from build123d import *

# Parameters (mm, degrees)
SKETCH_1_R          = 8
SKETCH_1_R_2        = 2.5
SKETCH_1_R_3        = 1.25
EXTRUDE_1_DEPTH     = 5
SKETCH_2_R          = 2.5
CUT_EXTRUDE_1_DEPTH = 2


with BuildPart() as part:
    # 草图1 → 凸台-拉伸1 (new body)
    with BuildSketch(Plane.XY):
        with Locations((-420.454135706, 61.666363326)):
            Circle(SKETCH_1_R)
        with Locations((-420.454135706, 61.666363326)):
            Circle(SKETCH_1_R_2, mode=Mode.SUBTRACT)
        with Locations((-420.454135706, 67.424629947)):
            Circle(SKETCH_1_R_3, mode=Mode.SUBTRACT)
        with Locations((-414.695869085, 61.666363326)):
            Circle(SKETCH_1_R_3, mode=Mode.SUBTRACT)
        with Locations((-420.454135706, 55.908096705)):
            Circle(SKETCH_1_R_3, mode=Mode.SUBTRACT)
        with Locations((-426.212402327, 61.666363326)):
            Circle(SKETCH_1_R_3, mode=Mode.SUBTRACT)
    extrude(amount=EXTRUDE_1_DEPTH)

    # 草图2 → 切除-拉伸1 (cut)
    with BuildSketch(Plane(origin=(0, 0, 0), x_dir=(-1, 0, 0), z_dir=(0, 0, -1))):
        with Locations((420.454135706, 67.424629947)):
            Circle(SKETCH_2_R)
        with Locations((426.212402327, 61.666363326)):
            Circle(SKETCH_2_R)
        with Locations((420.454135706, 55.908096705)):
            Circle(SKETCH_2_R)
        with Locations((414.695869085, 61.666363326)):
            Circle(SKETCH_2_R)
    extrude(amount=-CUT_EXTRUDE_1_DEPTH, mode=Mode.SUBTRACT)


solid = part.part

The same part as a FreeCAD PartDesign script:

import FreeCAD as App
import Part
import Sketcher

V = App.Vector
Q = App.Units.Quantity

doc = App.newDocument("Part")
body = doc.addObject("PartDesign::Body", "Body")

# Sketch on XY plane
sketch1 = body.newObject("Sketcher::SketchObject", "Sketch")
sketch1.AttachmentSupport = (doc.getObject("XY_Plane"), [""])
sketch1.MapMode = "FlatFace"
sketch1.addGeometry([
    Part.Circle(V(-420.454136, 61.666363, 0), V(0, 0, 1), 8),  # 0
    Part.Circle(V(-420.454136, 55.908097, 0), V(0, 0, 1), 1.25),  # 1
    Part.Circle(V(-426.212402, 61.666363, 0), V(0, 0, 1), 1.25),  # 2
    Part.Circle(V(-420.454136, 61.666363, 0), V(0, 0, 1), 2.5),  # 3
    Part.Circle(V(-414.695869, 61.666363, 0), V(0, 0, 1), 1.25),  # 4
    Part.Circle(V(-420.454136, 67.42463, 0), V(0, 0, 1), 1.25),  # 5
], False)
sketch1.addConstraint([
    Sketcher.Constraint("Coincident", 3, 3, 0, 3),
    Sketcher.Constraint("Equal", 1, 2),
    Sketcher.Constraint("Equal", 2, 4),
    Sketcher.Constraint("Equal", 4, 5),
    Sketcher.Constraint("Horizontal", 0, 3, 2, 3),
    Sketcher.Constraint("Horizontal", 3, 3, 4, 3),
    Sketcher.Constraint("Vertical", 0, 3, 1, 3),
    Sketcher.Constraint("Vertical", 3, 3, 5, 3),
    Sketcher.Constraint("Diameter", 0, Q("16 mm")),
    Sketcher.Constraint("Diameter", 3, Q("5 mm")),
    Sketcher.Constraint("Diameter", 1, Q("2.5 mm")),
    Sketcher.Constraint("DistanceX", 4, 3, -1, 1, Q("414.695869 mm")),
    Sketcher.Constraint("DistanceY", -1, 1, 5, 3, Q("67.42463 mm")),
    Sketcher.Constraint("DistanceX", 0, 3, -1, 1, Q("420.454136 mm")),
    Sketcher.Constraint("DistanceY", -1, 1, 0, 3, Q("61.666363 mm")),
    Sketcher.Constraint("DistanceY", -1, 1, 1, 3, Q("55.908097 mm")),
    Sketcher.Constraint("DistanceX", 2, 3, -1, 1, Q("426.212402 mm")),
])
pad1 = body.newObject("PartDesign::Pad", "Pad")
pad1.Profile = sketch1
pad1.Length = 5

# Sketch on XY plane
sketch2 = body.newObject("Sketcher::SketchObject", "Sketch001")
sketch2.AttachmentSupport = (doc.getObject("XY_Plane"), [""])
sketch2.MapMode = "FlatFace"
sketch2.addGeometry([
    Part.Circle(V(-420.454136, 67.42463, 0), V(0, 0, 1), 2.5),
    Part.Circle(V(-426.212402, 61.666363, 0), V(0, 0, 1), 2.5),
    Part.Circle(V(-420.454136, 55.908097, 0), V(0, 0, 1), 2.5),
    Part.Circle(V(-414.695869, 61.666363, 0), V(0, 0, 1), 2.5),
], False)
sketch2.addConstraint([
    Sketcher.Constraint("Equal", 0, 1),
    Sketcher.Constraint("Equal", 1, 2),
    Sketcher.Constraint("Equal", 2, 3),
    Sketcher.Constraint("Horizontal", 1, 3, 3, 3),
    Sketcher.Constraint("Vertical", 0, 3, 2, 3),
    Sketcher.Constraint("Diameter", 0, Q("5 mm")),
    Sketcher.Constraint("DistanceY", -1, 1, 0, 3, Q("67.42463 mm")),
    Sketcher.Constraint("DistanceX", 3, 3, -1, 1, Q("414.695869 mm")),
    Sketcher.Constraint("DistanceX", 0, 3, -1, 1, Q("420.454136 mm")),
    Sketcher.Constraint("DistanceX", 1, 3, -1, 1, Q("426.212402 mm")),
    Sketcher.Constraint("DistanceY", -1, 1, 1, 3, Q("61.666363 mm")),
    Sketcher.Constraint("DistanceY", -1, 1, 2, 3, Q("55.908097 mm")),
])
pocket1 = body.newObject("PartDesign::Pocket", "Pocket")
pocket1.Profile = sketch2
pocket1.Length = 2
pocket1.Reversed = True

doc.recompute()
